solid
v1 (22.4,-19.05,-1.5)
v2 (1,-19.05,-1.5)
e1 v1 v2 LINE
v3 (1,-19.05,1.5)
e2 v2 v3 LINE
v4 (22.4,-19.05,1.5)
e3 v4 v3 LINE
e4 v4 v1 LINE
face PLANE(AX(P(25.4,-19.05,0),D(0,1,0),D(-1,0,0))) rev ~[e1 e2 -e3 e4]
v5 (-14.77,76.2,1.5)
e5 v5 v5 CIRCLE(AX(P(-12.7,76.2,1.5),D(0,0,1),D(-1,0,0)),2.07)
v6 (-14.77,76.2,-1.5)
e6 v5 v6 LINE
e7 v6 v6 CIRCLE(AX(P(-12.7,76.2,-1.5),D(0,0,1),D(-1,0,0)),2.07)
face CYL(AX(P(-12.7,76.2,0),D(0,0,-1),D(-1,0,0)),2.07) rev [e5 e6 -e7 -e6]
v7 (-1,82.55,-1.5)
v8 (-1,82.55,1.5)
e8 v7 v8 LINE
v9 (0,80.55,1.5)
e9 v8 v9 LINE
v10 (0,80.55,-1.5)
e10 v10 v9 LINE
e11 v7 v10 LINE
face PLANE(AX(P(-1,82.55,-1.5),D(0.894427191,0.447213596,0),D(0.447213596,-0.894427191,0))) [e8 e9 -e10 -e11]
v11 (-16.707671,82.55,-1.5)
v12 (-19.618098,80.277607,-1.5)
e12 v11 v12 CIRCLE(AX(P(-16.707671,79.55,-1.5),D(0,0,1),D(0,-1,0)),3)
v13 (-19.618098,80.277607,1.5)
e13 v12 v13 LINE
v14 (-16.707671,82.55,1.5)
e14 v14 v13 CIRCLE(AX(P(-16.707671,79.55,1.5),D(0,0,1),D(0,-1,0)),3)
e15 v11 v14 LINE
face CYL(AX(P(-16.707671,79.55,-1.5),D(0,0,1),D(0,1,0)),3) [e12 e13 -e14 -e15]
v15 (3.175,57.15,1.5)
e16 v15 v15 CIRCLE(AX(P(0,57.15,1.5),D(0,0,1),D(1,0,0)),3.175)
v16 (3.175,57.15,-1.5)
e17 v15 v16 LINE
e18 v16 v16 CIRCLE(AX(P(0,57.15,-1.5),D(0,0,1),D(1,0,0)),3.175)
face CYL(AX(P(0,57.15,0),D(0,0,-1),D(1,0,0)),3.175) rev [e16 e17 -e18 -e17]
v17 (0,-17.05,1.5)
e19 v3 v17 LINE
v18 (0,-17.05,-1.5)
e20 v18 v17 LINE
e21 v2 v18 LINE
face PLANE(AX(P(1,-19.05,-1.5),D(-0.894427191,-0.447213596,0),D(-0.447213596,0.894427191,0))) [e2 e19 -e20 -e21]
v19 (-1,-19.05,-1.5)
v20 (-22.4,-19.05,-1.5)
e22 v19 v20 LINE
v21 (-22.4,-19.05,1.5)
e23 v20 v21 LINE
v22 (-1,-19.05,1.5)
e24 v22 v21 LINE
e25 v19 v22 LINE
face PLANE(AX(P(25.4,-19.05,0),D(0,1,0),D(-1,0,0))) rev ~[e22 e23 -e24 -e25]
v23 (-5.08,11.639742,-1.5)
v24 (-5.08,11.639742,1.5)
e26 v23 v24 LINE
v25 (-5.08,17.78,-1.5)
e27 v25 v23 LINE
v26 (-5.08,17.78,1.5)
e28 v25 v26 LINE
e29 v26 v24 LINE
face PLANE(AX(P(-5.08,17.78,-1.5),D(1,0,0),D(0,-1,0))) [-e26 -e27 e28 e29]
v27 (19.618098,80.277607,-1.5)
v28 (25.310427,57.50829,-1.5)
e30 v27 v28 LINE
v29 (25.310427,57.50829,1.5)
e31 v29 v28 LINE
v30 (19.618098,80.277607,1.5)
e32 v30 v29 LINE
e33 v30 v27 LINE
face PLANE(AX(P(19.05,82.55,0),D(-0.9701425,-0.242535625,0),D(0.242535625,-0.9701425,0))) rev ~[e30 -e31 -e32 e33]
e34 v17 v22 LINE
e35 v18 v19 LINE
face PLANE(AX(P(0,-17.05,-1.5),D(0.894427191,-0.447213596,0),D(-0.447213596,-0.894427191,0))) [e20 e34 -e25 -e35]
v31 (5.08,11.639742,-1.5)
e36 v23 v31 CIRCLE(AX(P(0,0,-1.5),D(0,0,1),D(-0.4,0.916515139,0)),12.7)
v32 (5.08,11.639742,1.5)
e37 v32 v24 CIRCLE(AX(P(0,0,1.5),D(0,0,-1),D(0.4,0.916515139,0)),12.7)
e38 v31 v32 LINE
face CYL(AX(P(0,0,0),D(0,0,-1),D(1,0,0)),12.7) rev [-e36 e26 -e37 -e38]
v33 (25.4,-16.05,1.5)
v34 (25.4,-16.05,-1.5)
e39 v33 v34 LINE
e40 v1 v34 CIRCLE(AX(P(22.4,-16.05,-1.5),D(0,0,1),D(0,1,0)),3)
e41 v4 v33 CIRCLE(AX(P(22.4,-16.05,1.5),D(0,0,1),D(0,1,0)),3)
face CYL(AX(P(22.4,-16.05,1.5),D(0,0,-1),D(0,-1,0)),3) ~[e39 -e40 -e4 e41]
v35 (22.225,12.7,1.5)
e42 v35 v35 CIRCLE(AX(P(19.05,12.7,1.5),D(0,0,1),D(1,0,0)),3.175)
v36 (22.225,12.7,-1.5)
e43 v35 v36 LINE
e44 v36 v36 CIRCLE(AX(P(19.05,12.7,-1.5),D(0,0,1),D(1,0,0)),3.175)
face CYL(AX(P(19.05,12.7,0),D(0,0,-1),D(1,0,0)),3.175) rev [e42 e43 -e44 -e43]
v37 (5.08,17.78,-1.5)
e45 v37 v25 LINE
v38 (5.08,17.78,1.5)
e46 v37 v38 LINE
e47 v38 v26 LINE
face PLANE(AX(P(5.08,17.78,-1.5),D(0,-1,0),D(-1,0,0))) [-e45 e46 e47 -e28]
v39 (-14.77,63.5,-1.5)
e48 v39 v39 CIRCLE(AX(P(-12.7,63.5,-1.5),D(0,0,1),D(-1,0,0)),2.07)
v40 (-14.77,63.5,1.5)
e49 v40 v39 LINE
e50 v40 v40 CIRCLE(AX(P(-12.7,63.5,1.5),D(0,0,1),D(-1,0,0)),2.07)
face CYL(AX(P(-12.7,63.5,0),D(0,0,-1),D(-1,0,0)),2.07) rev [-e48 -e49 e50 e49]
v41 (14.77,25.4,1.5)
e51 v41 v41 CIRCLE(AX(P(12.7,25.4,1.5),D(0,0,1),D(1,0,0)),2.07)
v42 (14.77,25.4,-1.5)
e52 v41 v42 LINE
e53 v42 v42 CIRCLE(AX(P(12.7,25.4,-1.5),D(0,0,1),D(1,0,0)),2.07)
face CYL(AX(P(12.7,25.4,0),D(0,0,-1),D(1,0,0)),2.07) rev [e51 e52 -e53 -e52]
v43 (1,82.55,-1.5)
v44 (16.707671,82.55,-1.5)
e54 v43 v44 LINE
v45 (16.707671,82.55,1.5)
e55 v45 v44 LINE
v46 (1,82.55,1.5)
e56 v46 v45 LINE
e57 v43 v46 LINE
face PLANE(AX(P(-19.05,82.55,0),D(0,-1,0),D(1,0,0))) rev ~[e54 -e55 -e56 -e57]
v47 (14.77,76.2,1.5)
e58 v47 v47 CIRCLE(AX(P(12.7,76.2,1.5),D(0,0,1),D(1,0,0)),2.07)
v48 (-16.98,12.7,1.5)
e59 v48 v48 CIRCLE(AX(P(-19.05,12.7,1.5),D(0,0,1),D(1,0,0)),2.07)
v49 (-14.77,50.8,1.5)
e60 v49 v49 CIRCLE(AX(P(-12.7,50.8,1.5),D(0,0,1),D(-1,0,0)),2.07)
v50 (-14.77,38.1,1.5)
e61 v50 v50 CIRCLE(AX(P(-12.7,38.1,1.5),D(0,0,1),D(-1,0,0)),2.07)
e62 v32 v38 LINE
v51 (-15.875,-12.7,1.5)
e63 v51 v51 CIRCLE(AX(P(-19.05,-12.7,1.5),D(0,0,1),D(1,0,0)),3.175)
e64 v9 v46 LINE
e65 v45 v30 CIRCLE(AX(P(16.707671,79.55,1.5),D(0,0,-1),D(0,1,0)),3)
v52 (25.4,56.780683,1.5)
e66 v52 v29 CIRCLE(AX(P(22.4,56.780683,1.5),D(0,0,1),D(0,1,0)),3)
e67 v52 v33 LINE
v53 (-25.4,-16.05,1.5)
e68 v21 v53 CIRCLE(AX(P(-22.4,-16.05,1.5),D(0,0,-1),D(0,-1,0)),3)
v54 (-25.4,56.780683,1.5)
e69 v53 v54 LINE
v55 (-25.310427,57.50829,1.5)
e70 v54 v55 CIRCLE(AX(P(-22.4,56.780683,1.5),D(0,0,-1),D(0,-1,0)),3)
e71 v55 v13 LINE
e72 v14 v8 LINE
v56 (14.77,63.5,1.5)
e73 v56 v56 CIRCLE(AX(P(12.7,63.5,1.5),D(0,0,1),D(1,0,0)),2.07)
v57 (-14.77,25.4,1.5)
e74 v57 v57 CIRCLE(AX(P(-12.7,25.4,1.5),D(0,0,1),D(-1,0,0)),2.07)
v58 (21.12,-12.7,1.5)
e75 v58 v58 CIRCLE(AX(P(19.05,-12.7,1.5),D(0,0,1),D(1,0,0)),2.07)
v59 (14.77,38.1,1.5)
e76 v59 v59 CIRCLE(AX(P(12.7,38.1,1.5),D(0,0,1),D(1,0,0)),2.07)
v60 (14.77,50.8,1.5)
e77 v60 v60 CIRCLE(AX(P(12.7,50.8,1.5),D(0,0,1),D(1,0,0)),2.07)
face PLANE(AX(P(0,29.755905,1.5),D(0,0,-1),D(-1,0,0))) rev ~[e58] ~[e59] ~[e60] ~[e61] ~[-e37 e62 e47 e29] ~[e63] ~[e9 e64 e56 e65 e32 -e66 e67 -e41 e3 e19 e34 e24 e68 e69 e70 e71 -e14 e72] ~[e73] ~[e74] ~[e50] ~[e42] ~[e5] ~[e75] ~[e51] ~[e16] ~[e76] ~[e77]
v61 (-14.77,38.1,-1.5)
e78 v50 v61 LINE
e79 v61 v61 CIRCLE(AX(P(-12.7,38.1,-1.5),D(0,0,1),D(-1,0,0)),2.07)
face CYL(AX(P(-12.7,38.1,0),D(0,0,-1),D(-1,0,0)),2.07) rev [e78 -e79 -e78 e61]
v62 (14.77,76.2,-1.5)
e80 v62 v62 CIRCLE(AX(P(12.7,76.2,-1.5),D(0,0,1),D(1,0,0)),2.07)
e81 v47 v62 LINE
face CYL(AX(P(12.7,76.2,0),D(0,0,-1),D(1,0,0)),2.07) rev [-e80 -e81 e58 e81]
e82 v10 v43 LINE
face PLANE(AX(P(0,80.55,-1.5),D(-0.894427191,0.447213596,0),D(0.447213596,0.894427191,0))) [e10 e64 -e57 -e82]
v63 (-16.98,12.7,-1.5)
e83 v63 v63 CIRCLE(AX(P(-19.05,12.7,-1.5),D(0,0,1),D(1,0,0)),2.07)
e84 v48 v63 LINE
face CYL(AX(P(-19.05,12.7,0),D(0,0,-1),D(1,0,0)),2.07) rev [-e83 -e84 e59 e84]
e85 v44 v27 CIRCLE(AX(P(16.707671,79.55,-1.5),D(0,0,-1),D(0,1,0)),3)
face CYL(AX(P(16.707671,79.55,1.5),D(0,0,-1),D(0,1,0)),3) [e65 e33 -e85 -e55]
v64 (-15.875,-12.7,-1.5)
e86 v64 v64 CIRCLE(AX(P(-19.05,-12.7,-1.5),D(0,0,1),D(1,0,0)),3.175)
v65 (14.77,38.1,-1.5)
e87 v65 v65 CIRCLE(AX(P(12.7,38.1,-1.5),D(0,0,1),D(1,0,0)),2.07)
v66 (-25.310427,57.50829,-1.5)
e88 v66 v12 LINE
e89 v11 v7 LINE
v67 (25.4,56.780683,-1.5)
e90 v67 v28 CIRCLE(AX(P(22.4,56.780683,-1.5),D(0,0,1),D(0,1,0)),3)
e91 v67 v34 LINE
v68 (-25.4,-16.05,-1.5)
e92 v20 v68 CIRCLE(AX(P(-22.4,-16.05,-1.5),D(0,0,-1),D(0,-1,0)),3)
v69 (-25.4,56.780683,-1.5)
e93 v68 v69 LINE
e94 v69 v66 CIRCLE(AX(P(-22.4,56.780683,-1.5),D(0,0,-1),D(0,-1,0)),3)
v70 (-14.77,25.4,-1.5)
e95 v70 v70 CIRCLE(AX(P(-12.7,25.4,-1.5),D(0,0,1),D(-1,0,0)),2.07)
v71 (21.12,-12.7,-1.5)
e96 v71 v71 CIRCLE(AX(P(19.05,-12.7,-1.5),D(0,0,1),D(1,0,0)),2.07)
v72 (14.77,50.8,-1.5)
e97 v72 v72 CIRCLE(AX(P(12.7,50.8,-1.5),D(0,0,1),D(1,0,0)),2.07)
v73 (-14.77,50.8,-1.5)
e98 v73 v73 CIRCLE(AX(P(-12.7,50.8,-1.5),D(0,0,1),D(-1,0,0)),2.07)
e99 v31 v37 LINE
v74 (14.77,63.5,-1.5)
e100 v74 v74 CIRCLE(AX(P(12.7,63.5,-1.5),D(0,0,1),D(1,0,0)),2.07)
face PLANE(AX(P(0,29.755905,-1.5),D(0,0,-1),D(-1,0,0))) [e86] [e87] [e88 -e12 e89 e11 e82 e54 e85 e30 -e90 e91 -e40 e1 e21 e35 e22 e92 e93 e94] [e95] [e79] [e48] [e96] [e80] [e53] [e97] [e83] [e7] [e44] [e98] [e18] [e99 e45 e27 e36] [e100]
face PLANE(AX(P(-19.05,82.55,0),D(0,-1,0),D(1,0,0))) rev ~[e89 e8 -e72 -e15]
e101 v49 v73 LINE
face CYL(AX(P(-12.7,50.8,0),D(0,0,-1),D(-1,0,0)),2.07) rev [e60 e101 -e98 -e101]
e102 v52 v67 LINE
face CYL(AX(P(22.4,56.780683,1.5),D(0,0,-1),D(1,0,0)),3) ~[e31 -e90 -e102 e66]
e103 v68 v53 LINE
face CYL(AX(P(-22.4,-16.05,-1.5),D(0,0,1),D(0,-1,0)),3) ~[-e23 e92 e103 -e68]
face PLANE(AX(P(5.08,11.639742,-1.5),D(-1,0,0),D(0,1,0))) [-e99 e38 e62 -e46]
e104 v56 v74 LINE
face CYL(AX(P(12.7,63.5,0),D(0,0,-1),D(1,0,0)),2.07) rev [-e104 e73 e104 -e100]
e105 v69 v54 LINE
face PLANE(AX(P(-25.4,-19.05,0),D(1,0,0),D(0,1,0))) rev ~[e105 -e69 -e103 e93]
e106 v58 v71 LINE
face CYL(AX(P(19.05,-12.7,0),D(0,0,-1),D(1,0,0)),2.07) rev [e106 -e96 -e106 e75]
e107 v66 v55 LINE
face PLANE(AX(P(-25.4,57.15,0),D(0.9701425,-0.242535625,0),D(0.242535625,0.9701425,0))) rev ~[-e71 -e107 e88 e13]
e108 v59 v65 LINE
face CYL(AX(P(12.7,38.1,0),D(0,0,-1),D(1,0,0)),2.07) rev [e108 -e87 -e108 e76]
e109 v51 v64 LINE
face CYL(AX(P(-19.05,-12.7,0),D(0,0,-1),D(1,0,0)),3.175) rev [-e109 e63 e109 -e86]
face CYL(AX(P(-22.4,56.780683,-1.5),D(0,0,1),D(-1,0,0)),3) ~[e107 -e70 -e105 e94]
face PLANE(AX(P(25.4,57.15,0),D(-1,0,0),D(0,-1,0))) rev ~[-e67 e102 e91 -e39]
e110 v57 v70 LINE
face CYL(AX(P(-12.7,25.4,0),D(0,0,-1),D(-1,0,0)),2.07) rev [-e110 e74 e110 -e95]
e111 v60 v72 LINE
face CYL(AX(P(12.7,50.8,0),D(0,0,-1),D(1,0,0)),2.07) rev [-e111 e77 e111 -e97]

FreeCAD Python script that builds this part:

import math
import FreeCAD as App
import Part
import Sketcher
Q = App.Units.Quantity


def edges_at(feature, points):
    """Names of the edges that pass closest to the given points."""
    edges = feature.Shape.Edges
    near = lambda p: min(range(len(edges)), key=lambda i: edges[i].distToShape(Part.Vertex(*p))[0])
    return sorted({f"Edge{near(p) + 1}" for p in points})

doc = App.newDocument("Part")
body = doc.addObject("PartDesign::Body", "Body")

# Sketch on XY plane
sketch1 = doc.addObject("Sketcher::SketchObject", "Sketch")
body.addObject(sketch1)
sketch1.AttachmentSupport = (doc.XY_Plane, [""])
sketch1.MapMode = "FlatFace"
sketch1.addGeometry(Part.LineSegment(App.Vector(19.1, 82.5, 0), App.Vector(-19.1, 82.5, 0)), False)
sketch1.addGeometry(Part.LineSegment(App.Vector(-19.1, 82.5, 0), App.Vector(-25.4, 57.1, 0)), False)
sketch1.addGeometry(Part.LineSegment(App.Vector(-25.4, 57.1, 0), App.Vector(-25.4, -19.1, 0)), False)
sketch1.addGeometry(Part.LineSegment(App.Vector(-25.4, -19.1, 0), App.Vector(25.4, -19.1, 0)), False)
sketch1.addGeometry(Part.LineSegment(App.Vector(25.4, -19.1, 0), App.Vector(25.4, 57.1, 0)), False)
sketch1.addGeometry(Part.LineSegment(App.Vector(25.4, 57.1, 0), App.Vector(19.1, 82.5, 0)), False)
sketch1.addGeometry(Part.Circle(App.Vector(19.1, -12.7, 0), App.Vector(0, 0, 1), 2.1), False)
sketch1.addGeometry(Part.Circle(App.Vector(19.1, 12.7, 0), App.Vector(0, 0, 1), 3.2), False)
sketch1.addGeometry(Part.Circle(App.Vector(12.7, 25.4, 0), App.Vector(0, 0, 1), 2.1), False)
sketch1.addGeometry(Part.Circle(App.Vector(0, 0, 0), App.Vector(0, 0, 1), 12.7), False)
sketch1.addGeometry(Part.Circle(App.Vector(-19.1, -12.7, 0), App.Vector(0, 0, 1), 3.2), False)
sketch1.addGeometry(Part.Circle(App.Vector(-19.1, 12.7, 0), App.Vector(0, 0, 1), 2.1), False)
sketch1.addGeometry(Part.Circle(App.Vector(-12.7, 25.4, 0), App.Vector(0, 0, 1), 2.1), False)
sketch1.addGeometry(Part.Circle(App.Vector(12.7, 38.1, 0), App.Vector(0, 0, 1), 2.1), False)
sketch1.addGeometry(Part.Circle(App.Vector(12.7, 50.8, 0), App.Vector(0, 0, 1), 2.1), False)
sketch1.addGeometry(Part.Circle(App.Vector(12.7, 63.5, 0), App.Vector(0, 0, 1), 2.1), False)
sketch1.addGeometry(Part.Circle(App.Vector(12.7, 76.2, 0), App.Vector(0, 0, 1), 2.1), False)
sketch1.addGeometry(Part.Circle(App.Vector(-12.7, 38.1, 0), App.Vector(0, 0, 1), 2.1), False)
sketch1.addGeometry(Part.Circle(App.Vector(-12.7, 50.8, 0), App.Vector(0, 0, 1), 2.1), False)
sketch1.addGeometry(Part.Circle(App.Vector(0, 57.1, 0), App.Vector(0, 0, 1), 3.2), False)
sketch1.addGeometry(Part.Circle(App.Vector(-12.7, 63.5, 0), App.Vector(0, 0, 1), 2.1), False)
sketch1.addGeometry(Part.Circle(App.Vector(-12.7, 76.2, 0), App.Vector(0, 0, 1), 2.1), False)
sketch1.addConstraint(Sketcher.Constraint("Coincident", 0, 2, 1, 1))
sketch1.addConstraint(Sketcher.Constraint("Coincident", 1, 2, 2, 1))
sketch1.addConstraint(Sketcher.Constraint("Coincident", 2, 2, 3, 1))
sketch1.addConstraint(Sketcher.Constraint("Coincident", 3, 2, 4, 1))
sketch1.addConstraint(Sketcher.Constraint("Coincident", 4, 2, 5, 1))
sketch1.addConstraint(Sketcher.Constraint("Coincident", 5, 2, 0, 1))
sketch1.addConstraint(Sketcher.Constraint("Horizontal", 0))
sketch1.addConstraint(Sketcher.Constraint("Vertical", 2))
sketch1.addConstraint(Sketcher.Constraint("Horizontal", 3))
sketch1.addConstraint(Sketcher.Constraint("Vertical", 4))
sketch1.addConstraint(Sketcher.Constraint("Coincident", 9, 3, -1, 1))
sketch1.addConstraint(Sketcher.Constraint("Equal", 6, 8))
sketch1.addConstraint(Sketcher.Constraint("Equal", 7, 10))
sketch1.addConstraint(Sketcher.Constraint("Equal", 8, 11))
sketch1.addConstraint(Sketcher.Constraint("Equal", 11, 12))
sketch1.addConstraint(Sketcher.Constraint("Equal", 12, 13))
sketch1.addConstraint(Sketcher.Constraint("Equal", 13, 14))
sketch1.addConstraint(Sketcher.Constraint("Equal", 14, 15))
sketch1.addConstraint(Sketcher.Constraint("Equal", 15, 16))
sketch1.addConstraint(Sketcher.Constraint("Equal", 16, 17))
sketch1.addConstraint(Sketcher.Constraint("Equal", 17, 18))
sketch1.addConstraint(Sketcher.Constraint("Equal", 10, 19))
sketch1.addConstraint(Sketcher.Constraint("Equal", 18, 20))
sketch1.addConstraint(Sketcher.Constraint("Equal", 20, 21))
sketch1.addConstraint(Sketcher.Constraint("Symmetric", 7, 3, 10, 3, -1, 1))
sketch1.addConstraint(Sketcher.Constraint("Symmetric", 6, 3, 11, 3, -1, 1))
sketch1.addConstraint(Sketcher.Constraint("Symmetric", 6, 3, 10, 3, -2))
sketch1.addConstraint(Sketcher.Constraint("Symmetric", 8, 3, 12, 3, -2))
sketch1.addConstraint(Sketcher.Constraint("Symmetric", 13, 3, 17, 3, -2))
sketch1.addConstraint(Sketcher.Constraint("Symmetric", 14, 3, 18, 3, -2))
sketch1.addConstraint(Sketcher.Constraint("Symmetric", 15, 3, 20, 3, -2))
sketch1.addConstraint(Sketcher.Constraint("Symmetric", 16, 3, 21, 3, -2))
sketch1.addConstraint(Sketcher.Constraint("Symmetric", 1, 2, 4, 2, -2))
sketch1.addConstraint(Sketcher.Constraint("PointOnObject", 19, 3, -2))
sketch1.addConstraint(Sketcher.Constraint("Horizontal", 19, 3, 1, 2))
sketch1.addConstraint(Sketcher.Constraint("Vertical", 8, 3, 13, 3))
sketch1.addConstraint(Sketcher.Constraint("Vertical", 13, 3, 14, 3))
sketch1.addConstraint(Sketcher.Constraint("Vertical", 14, 3, 15, 3))
sketch1.addConstraint(Sketcher.Constraint("Vertical", 15, 3, 16, 3))
sketch1.addConstraint(Sketcher.Constraint("Vertical", 11, 3, 0, 2))
sketch1.addConstraint(Sketcher.Constraint("Vertical", 7, 3, 5, 2))
sketch1.addConstraint(Sketcher.Constraint("Diameter", 9, Q("1 in")))
sketch1.addConstraint(Sketcher.Constraint("Diameter", 7, Q("0.25 in")))
sketch1.addConstraint(Sketcher.Constraint("DistanceX", 3, 1, 3, 2, Q("2 in")))
sketch1.addConstraint(Sketcher.Constraint("DistanceY", 2, 2, 2, 1, Q("3 in")))
sketch1.addConstraint(Sketcher.Constraint("DistanceX", 0, 2, 0, 1, Q("1.5 in")))
sketch1.addConstraint(Sketcher.Constraint("DistanceY", -1, 1, 8, 3, Q("1 in")))
sketch1.addConstraint(Sketcher.Constraint("DistanceY", -1, 1, 14, 3, Q("2 in")))
sketch1.addConstraint(Sketcher.Constraint("DistanceY", -1, 1, 16, 3, Q("3 in")))
sketch1.addConstraint(Sketcher.Constraint("DistanceY", 6, 3, 7, 3, Q("1 in")))
sketch1.addConstraint(Sketcher.Constraint("DistanceX", 12, 3, 8, 3, Q("1 in")))
sketch1.addConstraint(Sketcher.Constraint("DistanceY", 7, 3, 13, 3, Q("1 in")))
sketch1.addConstraint(Sketcher.Constraint("DistanceY", 13, 3, 15, 3, Q("1 in")))
sketch1.addConstraint(Sketcher.Constraint("DistanceY", 19, 3, 0, 2, Q("1 in")))
sketch1.addConstraint(Sketcher.Constraint("Diameter", 6, 4.14))
sketch1.addConstraint(Sketcher.Constraint("DistanceY", -1, 1, 19, 3, Q("2.25 in")))
pad1 = doc.addObject("PartDesign::Pad", "Pad")
body.addObject(pad1)
pad1.Profile = sketch1
pad1.Length = 3
pad1.Midplane = True
doc.recompute()

fillet = doc.addObject("PartDesign::Fillet", "Fillet")
body.addObject(fillet)
fillet.Base = (pad1, edges_at(pad1, [
    (-19.05, 82.55, 0),
    (19.05, 82.55, 0),
    (25.4, 57.15, 0),
    (25.4, -19.05, 0),
    (-25.4, -19.05, 0),
    (-25.4, 57.15, 0),
]))
fillet.Radius = 3

# Sketch on XY plane
sketch2 = doc.addObject("Sketcher::SketchObject", "Sketch001")
body.addObject(sketch2)
sketch2.AttachmentSupport = (doc.XY_Plane, [""])
sketch2.MapMode = "FlatFace"
sketch2.AttachmentOffset = App.Placement(App.Vector(0, 0, -1.5), App.Rotation())
sketch2.addGeometry(Part.LineSegment(App.Vector(5.1, 17.8, 0), App.Vector(-5.1, 17.8, 0)), False)
sketch2.addGeometry(Part.LineSegment(App.Vector(-5.1, 17.8, 0), App.Vector(-5.1, 11.6, 0)), False)
sketch2.addGeometry(Part.ArcOfCircle(Part.Circle(App.Vector(0, 0, 0), App.Vector(0, 0, 1), 12.7), math.radians(66), math.radians(114)), False)
sketch2.addGeometry(Part.LineSegment(App.Vector(5.1, 11.6, 0), App.Vector(5.1, 17.8, 0)), False)
sketch2.addGeometry(Part.LineSegment(App.Vector(0, -17.1, 0), App.Vector(-1, -19.1, 0)), False)
sketch2.addGeometry(Part.LineSegment(App.Vector(-1, -19.1, 0), App.Vector(1, -19.1, 0)), False)
sketch2.addGeometry(Part.LineSegment(App.Vector(1, -19.1, 0), App.Vector(0, -17.1, 0)), False)
sketch2.addGeometry(Part.LineSegment(App.Vector(1, 82.5, 0), App.Vector(-1, 82.5, 0)), False)
sketch2.addGeometry(Part.LineSegment(App.Vector(-1, 82.5, 0), App.Vector(0, 80.5, 0)), False)
sketch2.addGeometry(Part.LineSegment(App.Vector(0, 80.5, 0), App.Vector(1, 82.5, 0)), False)
sketch2.addConstraint(Sketcher.Constraint("Coincident", 0, 2, 1, 1))
sketch2.addConstraint(Sketcher.Constraint("Coincident", 1, 2, 2, 2))
sketch2.addConstraint(Sketcher.Constraint("Coincident", 2, 1, 3, 1))
sketch2.addConstraint(Sketcher.Constraint("Coincident", 3, 2, 0, 1))
sketch2.addConstraint(Sketcher.Constraint("Coincident", 4, 2, 5, 1))
sketch2.addConstraint(Sketcher.Constraint("Coincident", 5, 2, 6, 1))
sketch2.addConstraint(Sketcher.Constraint("Coincident", 6, 2, 4, 1))
sketch2.addConstraint(Sketcher.Constraint("Coincident", 7, 2, 8, 1))
sketch2.addConstraint(Sketcher.Constraint("Coincident", 8, 2, 9, 1))
sketch2.addConstraint(Sketcher.Constraint("Coincident", 9, 2, 7, 1))
sketch2.addConstraint(Sketcher.Constraint("Horizontal", 0))
sketch2.addConstraint(Sketcher.Constraint("Vertical", 1))
sketch2.addConstraint(Sketcher.Constraint("Vertical", 3))
sketch2.addConstraint(Sketcher.Constraint("Horizontal", 5))
sketch2.addConstraint(Sketcher.Constraint("Horizontal", 7))
sketch2.addConstraint(Sketcher.Constraint("Coincident", 2, 3, -1, 1))
sketch2.addConstraint(Sketcher.Constraint("PointOnObject", 6, 2, -2))
sketch2.addConstraint(Sketcher.Constraint("PointOnObject", 8, 2, -2))
sketch2.addConstraint(Sketcher.Constraint("Parallel", 6, 8))
sketch2.addConstraint(Sketcher.Constraint("Parallel", 4, 9))
sketch2.addConstraint(Sketcher.Constraint("Horizontal", 1, 2, 2, 1))
sketch2.addConstraint(Sketcher.Constraint("Vertical", 4, 2, 7, 2))
sketch2.addConstraint(Sketcher.Constraint("Vertical", 5, 2, 9, 2))
sketch2.addConstraint(Sketcher.Constraint("Radius", 2, Q("0.5 in")))
sketch2.addConstraint(Sketcher.Constraint("DistanceX", 0, 2, 0, 1, Q("0.4 in")))
sketch2.addConstraint(Sketcher.Constraint("DistanceY", -1, 1, 0, 2, Q("0.7 in")))
sketch2.addConstraint(Sketcher.Constraint("DistanceY", 4, 2, -1, 1, Q("0.75 in")))
sketch2.addConstraint(Sketcher.Constraint("DistanceY", -1, 1, 7, 2, Q("3.25 in")))
sketch2.addConstraint(Sketcher.Constraint("DistanceX", 5, 1, 5, 2, 2.0))
sketch2.addConstraint(Sketcher.Constraint("DistanceY", 6, 2, -1, 1, 17.05))
pocket1 = doc.addObject("PartDesign::Pocket", "Pocket")
body.addObject(pocket1)
pocket1.Profile = sketch2
pocket1.Length = 3
pocket1.Reversed = True

doc.recompute()
